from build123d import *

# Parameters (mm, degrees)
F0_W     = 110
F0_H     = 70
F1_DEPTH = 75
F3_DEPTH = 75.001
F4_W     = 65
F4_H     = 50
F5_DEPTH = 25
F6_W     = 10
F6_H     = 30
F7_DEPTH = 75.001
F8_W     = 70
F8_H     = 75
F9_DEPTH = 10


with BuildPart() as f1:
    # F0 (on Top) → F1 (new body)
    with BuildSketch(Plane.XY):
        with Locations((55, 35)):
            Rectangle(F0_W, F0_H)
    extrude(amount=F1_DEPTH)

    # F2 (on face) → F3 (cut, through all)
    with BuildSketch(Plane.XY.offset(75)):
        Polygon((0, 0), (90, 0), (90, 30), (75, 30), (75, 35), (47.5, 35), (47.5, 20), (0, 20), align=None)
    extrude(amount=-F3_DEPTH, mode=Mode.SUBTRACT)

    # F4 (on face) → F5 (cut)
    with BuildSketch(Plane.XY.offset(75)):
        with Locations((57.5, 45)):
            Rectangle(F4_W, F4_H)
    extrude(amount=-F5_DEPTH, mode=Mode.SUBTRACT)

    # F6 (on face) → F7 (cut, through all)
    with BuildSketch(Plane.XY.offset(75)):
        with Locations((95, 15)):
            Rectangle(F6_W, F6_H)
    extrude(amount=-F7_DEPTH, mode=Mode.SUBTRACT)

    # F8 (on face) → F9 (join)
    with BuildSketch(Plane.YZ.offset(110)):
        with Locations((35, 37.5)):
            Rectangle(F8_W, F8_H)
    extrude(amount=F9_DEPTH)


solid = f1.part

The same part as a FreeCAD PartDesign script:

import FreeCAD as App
import Part
import Sketcher

V = App.Vector
Q = App.Units.Quantity


def add_polygon(sketch, points):
    """Adds a closed chain of lines whose ends are joined by coincident constraints."""
    first, n = sketch.GeometryCount, len(points)
    for a, b in zip(points, points[1:] + points[:1]):
        sketch.addGeometry(Part.LineSegment(App.Vector(*a, 0), App.Vector(*b, 0)), False)
    for i in range(n):
        sketch.addConstraint(Sketcher.Constraint("Coincident", first + i, 2, first + (i + 1) % n, 1))

doc = App.newDocument("Part")
params = doc.addObject("Spreadsheet::Sheet", "Params")
for row, (alias, value) in enumerate([
    ("sketch1_width", "110 mm"),
    ("sketch1_height", "70 mm"),
    ("pad1_length", "75 mm"),
    ("sketch2_width", "90 mm"),
    ("sketch2_width2", "15 mm"),
    ("sketch2_height", "30 mm"),
    ("sketch2_height2", "5 mm"),
    ("sketch2_width3", "27.5 mm"),
    ("sketch3_width", "65 mm"),
    ("sketch3_height", "50 mm"),
    ("pocket2_length", "25 mm"),
    ("sketch4_width", "10 mm"),
    ("sketch4_height", "30 mm"),
    ("sketch5_width", "70 mm"),
    ("sketch5_height", "75 mm"),
    ("pad2_length", "10 mm"),
], start=1):
    params.set(f"A{row}", alias)
    params.set(f"B{row}", "=" + value)
    params.setAlias(f"B{row}", alias)

body = doc.addObject("PartDesign::Body", "Body")

# Sketch on XY plane
sketch1 = body.newObject("Sketcher::SketchObject", "Sketch")
sketch1.AttachmentSupport = (doc.getObject("XY_Plane"), [""])
sketch1.MapMode = "FlatFace"
add_polygon(sketch1, [(0, 70), (0, 0), (110, 0), (110, 70)])  # lines 0-3
sketch1.addConstraint([
    Sketcher.Constraint("Vertical", 0),
    Sketcher.Constraint("Horizontal", 1),
    Sketcher.Constraint("Vertical", 2),
    Sketcher.Constraint("Horizontal", 3),
    Sketcher.Constraint("Coincident", 0, 2, -1, 1),
    Sketcher.Constraint("DistanceX", 1, 1, 1, 2, Q("110 mm")),
    Sketcher.Constraint("DistanceY", 0, 2, 0, 1, Q("70 mm")),
])
sketch1.setExpression("Constraints[9]", "Params.sketch1_width")
sketch1.setExpression("Constraints[10]", "Params.sketch1_height")
pad1 = body.newObject("PartDesign::Pad", "Pad")
pad1.Profile = sketch1
pad1.setExpression("Length", "Params.pad1_length")

# Sketch on XY plane
sketch2 = body.newObject("Sketcher::SketchObject", "Sketch001")
sketch2.AttachmentSupport = (doc.getObject("XY_Plane"), [""])
sketch2.MapMode = "FlatFace"
sketch2.AttachmentOffset = App.Placement(V(0, 0, 75), App.Rotation())
add_polygon(sketch2, [(0, 0), (90, 0), (90, 30), (75, 30), (75, 35), (48, 35), (48, 20), (0, 20)])  # lines 0-7
sketch2.addConstraint([
    Sketcher.Constraint("Horizontal", 0),
    Sketcher.Constraint("Vertical", 1),
    Sketcher.Constraint("Horizontal", 2),
    Sketcher.Constraint("Vertical", 3),
    Sketcher.Constraint("Horizontal", 4),
    Sketcher.Constraint("Vertical", 5),
    Sketcher.Constraint("Horizontal", 6),
    Sketcher.Constraint("Vertical", 7),
    Sketcher.Constraint("Coincident", 7, 2, -1, 1),
    Sketcher.Constraint("Equal", 2, 5),
    Sketcher.Constraint("DistanceX", 0, 1, 0, 2, Q("90 mm")),
    Sketcher.Constraint("DistanceX", 2, 2, 2, 1, Q("15 mm")),
    Sketcher.Constraint("DistanceY", 1, 1, 1, 2, Q("30 mm")),
    Sketcher.Constraint("DistanceY", 3, 1, 3, 2, Q("5 mm")),
    Sketcher.Constraint("DistanceX", 4, 2, 4, 1, Q("27.5 mm")),
])
sketch2.setExpression("Constraints[18]", "Params.sketch2_width")
sketch2.setExpression("Constraints[19]", "Params.sketch2_width2")
sketch2.setExpression("Constraints[20]", "Params.sketch2_height")
sketch2.setExpression("Constraints[21]", "Params.sketch2_height2")
sketch2.setExpression("Constraints[22]", "Params.sketch2_width3")
pocket1 = body.newObject("PartDesign::Pocket", "Pocket")
pocket1.Profile = sketch2
pocket1.Type = "ThroughAll"

# Sketch on XY plane
sketch3 = body.newObject("Sketcher::SketchObject", "Sketch002")
sketch3.AttachmentSupport = (doc.getObject("XY_Plane"), [""])
sketch3.MapMode = "FlatFace"
sketch3.AttachmentOffset = App.Placement(V(0, 0, 75), App.Rotation())
add_polygon(sketch3, [(25, 70), (25, 20), (90, 20), (90, 70)])  # lines 0-3
sketch3.addConstraint([
    Sketcher.Constraint("Vertical", 0),
    Sketcher.Constraint("Horizontal", 1),
    Sketcher.Constraint("Vertical", 2),
    Sketcher.Constraint("Horizontal", 3),
    Sketcher.Constraint("DistanceX", 1, 1, 1, 2, Q("65 mm")),
    Sketcher.Constraint("DistanceY", 0, 2, 0, 1, Q("50 mm")),
    Sketcher.Constraint("DistanceX", -1, 1, 0, 2, Q("25 mm")),
    Sketcher.Constraint("DistanceY", -1, 1, 0, 2, Q("20 mm")),
])
sketch3.setExpression("Constraints[8]", "Params.sketch3_width")
sketch3.setExpression("Constraints[9]", "Params.sketch3_height")
pocket2 = body.newObject("PartDesign::Pocket", "Pocket001")
pocket2.Profile = sketch3
pocket2.setExpression("Length", "Params.pocket2_length")

# Sketch on XY plane
sketch4 = body.newObject("Sketcher::SketchObject", "Sketch003")
sketch4.AttachmentSupport = (doc.getObject("XY_Plane"), [""])
sketch4.MapMode = "FlatFace"
sketch4.AttachmentOffset = App.Placement(V(0, 0, 75), App.Rotation())
add_polygon(sketch4, [(90, 30), (90, 0), (100, 0), (100, 30)])  # lines 0-3
sketch4.addConstraint([
    Sketcher.Constraint("Vertical", 0),
    Sketcher.Constraint("Horizontal", 1),
    Sketcher.Constraint("Vertical", 2),
    Sketcher.Constraint("Horizontal", 3),
    Sketcher.Constraint("PointOnObject", 0, 2, -1),
    Sketcher.Constraint("DistanceX", 1, 1, 1, 2, Q("10 mm")),
    Sketcher.Constraint("DistanceY", 0, 2, 0, 1, Q("30 mm")),
    Sketcher.Constraint("DistanceX", -1, 1, 0, 2, Q("90 mm")),
])
sketch4.setExpression("Constraints[9]", "Params.sketch4_width")
sketch4.setExpression("Constraints[10]", "Params.sketch4_height")
pocket3 = body.newObject("PartDesign::Pocket", "Pocket002")
pocket3.Profile = sketch4
pocket3.Type = "ThroughAll"

# Sketch on YZ plane
sketch5 = body.newObject("Sketcher::SketchObject", "Sketch004")
sketch5.AttachmentSupport = (doc.getObject("YZ_Plane"), [""])
sketch5.MapMode = "FlatFace"
sketch5.AttachmentOffset = App.Placement(V(0, 0, 110), App.Rotation())
add_polygon(sketch5, [(0, 75), (0, 0), (70, 0), (70, 75)])  # lines 0-3
sketch5.addConstraint([
    Sketcher.Constraint("Vertical", 0),
    Sketcher.Constraint("Horizontal", 1),
    Sketcher.Constraint("Vertical", 2),
    Sketcher.Constraint("Horizontal", 3),
    Sketcher.Constraint("Coincident", 0, 2, -1, 1),
    Sketcher.Constraint("DistanceX", 1, 1, 1, 2, Q("70 mm")),
    Sketcher.Constraint("DistanceY", 0, 2, 0, 1, Q("75 mm")),
])
sketch5.setExpression("Constraints[9]", "Params.sketch5_width")
sketch5.setExpression("Constraints[10]", "Params.sketch5_height")
pad2 = body.newObject("PartDesign::Pad", "Pad001")
pad2.Profile = sketch5
pad2.setExpression("Length", "Params.pad2_length")

doc.recompute()
